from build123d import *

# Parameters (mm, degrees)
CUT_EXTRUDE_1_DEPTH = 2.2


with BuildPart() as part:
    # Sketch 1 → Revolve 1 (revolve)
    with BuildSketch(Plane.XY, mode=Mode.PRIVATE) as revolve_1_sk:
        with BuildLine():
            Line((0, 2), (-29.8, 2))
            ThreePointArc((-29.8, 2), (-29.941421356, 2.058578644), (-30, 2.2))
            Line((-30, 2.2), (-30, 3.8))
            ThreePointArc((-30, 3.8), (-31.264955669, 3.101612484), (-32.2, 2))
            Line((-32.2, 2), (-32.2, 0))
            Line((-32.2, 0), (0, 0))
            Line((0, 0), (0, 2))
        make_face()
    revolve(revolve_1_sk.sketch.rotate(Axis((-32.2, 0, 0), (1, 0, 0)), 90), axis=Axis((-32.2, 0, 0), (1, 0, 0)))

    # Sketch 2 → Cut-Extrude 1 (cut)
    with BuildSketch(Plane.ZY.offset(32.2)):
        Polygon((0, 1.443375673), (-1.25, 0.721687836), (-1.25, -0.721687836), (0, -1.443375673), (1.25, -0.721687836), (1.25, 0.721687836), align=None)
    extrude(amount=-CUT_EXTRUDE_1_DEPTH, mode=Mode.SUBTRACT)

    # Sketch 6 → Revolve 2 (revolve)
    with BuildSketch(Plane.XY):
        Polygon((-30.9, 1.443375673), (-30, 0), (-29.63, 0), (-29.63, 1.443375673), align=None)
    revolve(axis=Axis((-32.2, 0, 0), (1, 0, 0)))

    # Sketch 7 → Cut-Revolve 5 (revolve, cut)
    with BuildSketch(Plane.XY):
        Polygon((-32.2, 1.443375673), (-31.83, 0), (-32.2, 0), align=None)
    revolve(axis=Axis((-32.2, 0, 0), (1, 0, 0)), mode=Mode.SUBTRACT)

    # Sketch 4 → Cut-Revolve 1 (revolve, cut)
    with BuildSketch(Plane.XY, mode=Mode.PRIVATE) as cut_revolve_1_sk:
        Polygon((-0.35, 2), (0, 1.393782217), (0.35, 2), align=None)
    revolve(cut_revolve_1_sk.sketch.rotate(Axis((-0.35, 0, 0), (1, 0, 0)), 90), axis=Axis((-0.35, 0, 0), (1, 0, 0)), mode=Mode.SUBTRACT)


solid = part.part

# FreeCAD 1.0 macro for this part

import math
import FreeCAD as App
import Part
import Sketcher

V = App.Vector
Q = App.Units.Quantity


def add_polygon(sketch, points):
    """Adds a closed chain of lines whose ends are joined by coincident constraints."""
    first, n = sketch.GeometryCount, len(points)
    for a, b in zip(points, points[1:] + points[:1]):
        sketch.addGeometry(Part.LineSegment(App.Vector(*a, 0), App.Vector(*b, 0)), False)
    for i in range(n):
        sketch.addConstraint(Sketcher.Constraint("Coincident", first + i, 2, first + (i + 1) % n, 1))

doc = App.newDocument("Part")
params = doc.addObject("Spreadsheet::Sheet", "Params")
for row, (alias, value) in enumerate([
    ("sketch1_radius", "0.2 mm"),
    ("sketch1_height", "2 mm"),
    ("sketch1_width", "29.8 mm"),
    ("sketch1_width2", "32.2 mm"),
    ("sketch1_height2", "1.6 mm"),
    ("revolution_angle", "360 deg"),
    ("pocket1_length", "2.2 mm"),
    ("sketch3_width", "0.37 mm"),
    ("sketch3_width2", "1.27 mm"),
    ("revolution2_angle", "360 deg"),
    ("sketch4_width", "0.37 mm"),
    ("groove_angle", "360 deg"),
    ("sketch5_width", "0.7 mm"),
    ("groove2_angle", "360 deg"),
], start=1):
    params.set(f"A{row}", alias)
    params.set(f"B{row}", "=" + value)
    params.setAlias(f"B{row}", alias)

body = doc.addObject("PartDesign::Body", "Body")

sketch1 = body.newObject("Sketcher::SketchObject", "Sketch")
sketch1.AttachmentSupport = (doc.getObject("XY_Plane"), [""])
sketch1.MapMode = "FlatFace"
sketch1.addGeometry(Part.LineSegment(V(0, 2, 0), V(-29.8, 2, 0)), False)
sketch1.addGeometry(Part.ArcOfCircle(Part.Circle(V(-29.8, 2.2, 0), V(0, 0, 1), 0.2), math.radians(-180), math.radians(-90)), False)
sketch1.addGeometry(Part.LineSegment(V(-30, 2.2, 0), V(-30, 3.8, 0)), False)
sketch1.addGeometry(Part.ArcOfCircle(Part.Circle(V(-28.727273, 0, 0), V(0, 0, 1), 4.007472), math.radians(108.517152), math.radians(150.061662)), False)
sketch1.addGeometry(Part.LineSegment(V(-32.2, 2, 0), V(-32.2, 0, 0)), False)
sketch1.addGeometry(Part.LineSegment(V(-32.2, 0, 0), V(0, 0, 0)), False)
sketch1.addGeometry(Part.LineSegment(V(0, 0, 0), V(0, 2, 0)), False)
sketch1.addConstraint(Sketcher.Constraint("Tangent", 0, 2, 1, 2))
sketch1.addConstraint(Sketcher.Constraint("Tangent", 1, 1, 2, 1))
sketch1.addConstraint(Sketcher.Constraint("Coincident", 2, 2, 3, 1))
sketch1.addConstraint(Sketcher.Constraint("Coincident", 3, 2, 4, 1))
sketch1.addConstraint(Sketcher.Constraint("Coincident", 4, 2, 5, 1))
sketch1.addConstraint(Sketcher.Constraint("Coincident", 5, 2, 6, 1))
sketch1.addConstraint(Sketcher.Constraint("Coincident", 6, 2, 0, 1))
sketch1.addConstraint(Sketcher.Constraint("Horizontal", 0))
sketch1.addConstraint(Sketcher.Constraint("Vertical", 2))
sketch1.addConstraint(Sketcher.Constraint("Vertical", 4))
sketch1.addConstraint(Sketcher.Constraint("Horizontal", 5))
sketch1.addConstraint(Sketcher.Constraint("Vertical", 6))
sketch1.addConstraint(Sketcher.Constraint("Coincident", 5, 2, -1, 1))
sketch1.addConstraint(Sketcher.Constraint("PointOnObject", 3, 3, -1))
sketch1.addConstraint(Sketcher.Constraint("Horizontal", 0, 2, 3, 2))
sketch1.addConstraint(Sketcher.Constraint("Radius", 1, Q("0.2 mm")))
sketch1.addConstraint(Sketcher.Constraint("DistanceY", 4, 2, 4, 1, Q("2 mm")))
sketch1.addConstraint(Sketcher.Constraint("DistanceX", 0, 2, 0, 1, Q("29.8 mm")))
sketch1.addConstraint(Sketcher.Constraint("DistanceX", 5, 1, 5, 2, Q("32.2 mm")))
sketch1.addConstraint(Sketcher.Constraint("DistanceY", 2, 1, 2, 2, Q("1.6 mm")))
sketch1.setExpression("Constraints[15]", "Params.sketch1_radius")
sketch1.setExpression("Constraints[16]", "Params.sketch1_height")
sketch1.setExpression("Constraints[17]", "Params.sketch1_width")
sketch1.setExpression("Constraints[18]", "Params.sketch1_width2")
sketch1.setExpression("Constraints[19]", "Params.sketch1_height2")
revolution = body.newObject("PartDesign::Revolution", "Revolution")
revolution.Profile = sketch1
revolution.ReferenceAxis = (sketch1, ["H_Axis"])
revolution.setExpression("Angle", "Params.revolution_angle")

sketch2 = body.newObject("Sketcher::SketchObject", "Sketch001")
sketch2.AttachmentSupport = (doc.getObject("YZ_Plane"), [""])
sketch2.MapMode = "FlatFace"
sketch2.AttachmentOffset = App.Placement(V(0, 0, -32.2), App.Rotation())
add_polygon(sketch2, [(1.443376, 0), (0.721688, -1.25), (-0.721688, -1.25), (-1.443376, 0), (-0.721688, 1.25), (0.721688, 1.25)])
sketch2.addConstraint(Sketcher.Constraint("Horizontal", 1))
sketch2.addConstraint(Sketcher.Constraint("Horizontal", 4))
sketch2.addConstraint(Sketcher.Constraint("Symmetric", 0, 2, 3, 2, -1, 1))
sketch2.addConstraint(Sketcher.Constraint("Symmetric", 2, 2, 5, 2, -1, 1))
sketch2.addConstraint(Sketcher.Constraint("PointOnObject", 2, 2, -1))
sketch2.addConstraint(Sketcher.Constraint("Parallel", 2, 5))
sketch2.addConstraint(Sketcher.Constraint("Vertical", 1, 2, 3, 2))
sketch2.addConstraint(Sketcher.Constraint("Angle", 0, Q("-120 deg")))
sketch2.addConstraint(Sketcher.Constraint("DistanceY", 1, 2, 3, 2, Q("2.5 mm")))
sketch2.addConstraint(Sketcher.Constraint("DistanceX", 1, 2, 1, 1, Q("1.443376 mm")))
pocket1 = body.newObject("PartDesign::Pocket", "Pocket")
pocket1.Profile = sketch2
pocket1.setExpression("Length", "Params.pocket1_length")
pocket1.Reversed = True

sketch3 = body.newObject("Sketcher::SketchObject", "Sketch002")
sketch3.AttachmentSupport = (doc.getObject("XY_Plane"), [""])
sketch3.MapMode = "FlatFace"
add_polygon(sketch3, [(-30.9, 1.443376), (-30, 0), (-29.63, 0), (-29.63, 1.443376)])
sketch3.addConstraint(Sketcher.Constraint("Horizontal", 1))
sketch3.addConstraint(Sketcher.Constraint("Vertical", 2))
sketch3.addConstraint(Sketcher.Constraint("Horizontal", 3))
sketch3.addConstraint(Sketcher.Constraint("PointOnObject", 0, 2, -1))
sketch3.addConstraint(Sketcher.Constraint("DistanceX", 0, 2, -1, 1, Q("30 mm")))
sketch3.addConstraint(Sketcher.Constraint("DistanceX", 1, 1, 1, 2, Q("0.37 mm")))
sketch3.addConstraint(Sketcher.Constraint("DistanceX", 3, 2, 3, 1, Q("1.27 mm")))
sketch3.addConstraint(Sketcher.Constraint("Distance", 0, Q("1.70098 mm")))
sketch3.setExpression("Constraints[9]", "Params.sketch3_width")
sketch3.setExpression("Constraints[10]", "Params.sketch3_width2")
revolution2 = body.newObject("PartDesign::Revolution", "Revolution001")
revolution2.Profile = sketch3
revolution2.ReferenceAxis = (sketch3, ["H_Axis"])
revolution2.setExpression("Angle", "Params.revolution2_angle")

sketch4 = body.newObject("Sketcher::SketchObject", "Sketch003")
sketch4.AttachmentSupport = (doc.getObject("XY_Plane"), [""])
sketch4.MapMode = "FlatFace"
add_polygon(sketch4, [(-31.83, 0), (-32.2, 1.443376), (-32.2, 0)])
sketch4.addConstraint(Sketcher.Constraint("Vertical", 1))
sketch4.addConstraint(Sketcher.Constraint("Horizontal", 2))
sketch4.addConstraint(Sketcher.Constraint("PointOnObject", 1, 2, -1))
sketch4.addConstraint(Sketcher.Constraint("DistanceX", 2, 1, 2, 2, Q("0.37 mm")))
sketch4.addConstraint(Sketcher.Constraint("DistanceX", 0, 2, -1, 1, Q("32.2 mm")))
sketch4.addConstraint(Sketcher.Constraint("DistanceY", 1, 2, 1, 1, Q("1.443376 mm")))
sketch4.setExpression("Constraints[6]", "Params.sketch4_width")
groove = body.newObject("PartDesign::Groove", "Groove")
groove.Profile = sketch4
groove.ReferenceAxis = (sketch4, ["H_Axis"])
groove.setExpression("Angle", "Params.groove_angle")

sketch5 = body.newObject("Sketcher::SketchObject", "Sketch004")
sketch5.AttachmentSupport = (doc.getObject("XY_Plane"), [""])
sketch5.MapMode = "FlatFace"
add_polygon(sketch5, [(-0.35, 2), (0, 1.393782), (0.35, 2)])
sketch5.addConstraint(Sketcher.Constraint("Horizontal", 2))
sketch5.addConstraint(Sketcher.Constraint("PointOnObject", 0, 2, -2))
sketch5.addConstraint(Sketcher.Constraint("Equal", 0, 1))
sketch5.addConstraint(Sketcher.Constraint("Angle", 0, Q("-60 deg")))
sketch5.addConstraint(Sketcher.Constraint("DistanceX", 2, 2, 2, 1, Q("0.7 mm")))
sketch5.addConstraint(Sketcher.Constraint("DistanceY", -1, 1, 1, 2, Q("2 mm")))
sketch5.setExpression("Constraints[7]", "Params.sketch5_width")
groove2 = body.newObject("PartDesign::Groove", "Groove001")
groove2.Profile = sketch5
groove2.ReferenceAxis = (sketch5, ["H_Axis"])
groove2.setExpression("Angle", "Params.groove2_angle")

doc.recompute()
